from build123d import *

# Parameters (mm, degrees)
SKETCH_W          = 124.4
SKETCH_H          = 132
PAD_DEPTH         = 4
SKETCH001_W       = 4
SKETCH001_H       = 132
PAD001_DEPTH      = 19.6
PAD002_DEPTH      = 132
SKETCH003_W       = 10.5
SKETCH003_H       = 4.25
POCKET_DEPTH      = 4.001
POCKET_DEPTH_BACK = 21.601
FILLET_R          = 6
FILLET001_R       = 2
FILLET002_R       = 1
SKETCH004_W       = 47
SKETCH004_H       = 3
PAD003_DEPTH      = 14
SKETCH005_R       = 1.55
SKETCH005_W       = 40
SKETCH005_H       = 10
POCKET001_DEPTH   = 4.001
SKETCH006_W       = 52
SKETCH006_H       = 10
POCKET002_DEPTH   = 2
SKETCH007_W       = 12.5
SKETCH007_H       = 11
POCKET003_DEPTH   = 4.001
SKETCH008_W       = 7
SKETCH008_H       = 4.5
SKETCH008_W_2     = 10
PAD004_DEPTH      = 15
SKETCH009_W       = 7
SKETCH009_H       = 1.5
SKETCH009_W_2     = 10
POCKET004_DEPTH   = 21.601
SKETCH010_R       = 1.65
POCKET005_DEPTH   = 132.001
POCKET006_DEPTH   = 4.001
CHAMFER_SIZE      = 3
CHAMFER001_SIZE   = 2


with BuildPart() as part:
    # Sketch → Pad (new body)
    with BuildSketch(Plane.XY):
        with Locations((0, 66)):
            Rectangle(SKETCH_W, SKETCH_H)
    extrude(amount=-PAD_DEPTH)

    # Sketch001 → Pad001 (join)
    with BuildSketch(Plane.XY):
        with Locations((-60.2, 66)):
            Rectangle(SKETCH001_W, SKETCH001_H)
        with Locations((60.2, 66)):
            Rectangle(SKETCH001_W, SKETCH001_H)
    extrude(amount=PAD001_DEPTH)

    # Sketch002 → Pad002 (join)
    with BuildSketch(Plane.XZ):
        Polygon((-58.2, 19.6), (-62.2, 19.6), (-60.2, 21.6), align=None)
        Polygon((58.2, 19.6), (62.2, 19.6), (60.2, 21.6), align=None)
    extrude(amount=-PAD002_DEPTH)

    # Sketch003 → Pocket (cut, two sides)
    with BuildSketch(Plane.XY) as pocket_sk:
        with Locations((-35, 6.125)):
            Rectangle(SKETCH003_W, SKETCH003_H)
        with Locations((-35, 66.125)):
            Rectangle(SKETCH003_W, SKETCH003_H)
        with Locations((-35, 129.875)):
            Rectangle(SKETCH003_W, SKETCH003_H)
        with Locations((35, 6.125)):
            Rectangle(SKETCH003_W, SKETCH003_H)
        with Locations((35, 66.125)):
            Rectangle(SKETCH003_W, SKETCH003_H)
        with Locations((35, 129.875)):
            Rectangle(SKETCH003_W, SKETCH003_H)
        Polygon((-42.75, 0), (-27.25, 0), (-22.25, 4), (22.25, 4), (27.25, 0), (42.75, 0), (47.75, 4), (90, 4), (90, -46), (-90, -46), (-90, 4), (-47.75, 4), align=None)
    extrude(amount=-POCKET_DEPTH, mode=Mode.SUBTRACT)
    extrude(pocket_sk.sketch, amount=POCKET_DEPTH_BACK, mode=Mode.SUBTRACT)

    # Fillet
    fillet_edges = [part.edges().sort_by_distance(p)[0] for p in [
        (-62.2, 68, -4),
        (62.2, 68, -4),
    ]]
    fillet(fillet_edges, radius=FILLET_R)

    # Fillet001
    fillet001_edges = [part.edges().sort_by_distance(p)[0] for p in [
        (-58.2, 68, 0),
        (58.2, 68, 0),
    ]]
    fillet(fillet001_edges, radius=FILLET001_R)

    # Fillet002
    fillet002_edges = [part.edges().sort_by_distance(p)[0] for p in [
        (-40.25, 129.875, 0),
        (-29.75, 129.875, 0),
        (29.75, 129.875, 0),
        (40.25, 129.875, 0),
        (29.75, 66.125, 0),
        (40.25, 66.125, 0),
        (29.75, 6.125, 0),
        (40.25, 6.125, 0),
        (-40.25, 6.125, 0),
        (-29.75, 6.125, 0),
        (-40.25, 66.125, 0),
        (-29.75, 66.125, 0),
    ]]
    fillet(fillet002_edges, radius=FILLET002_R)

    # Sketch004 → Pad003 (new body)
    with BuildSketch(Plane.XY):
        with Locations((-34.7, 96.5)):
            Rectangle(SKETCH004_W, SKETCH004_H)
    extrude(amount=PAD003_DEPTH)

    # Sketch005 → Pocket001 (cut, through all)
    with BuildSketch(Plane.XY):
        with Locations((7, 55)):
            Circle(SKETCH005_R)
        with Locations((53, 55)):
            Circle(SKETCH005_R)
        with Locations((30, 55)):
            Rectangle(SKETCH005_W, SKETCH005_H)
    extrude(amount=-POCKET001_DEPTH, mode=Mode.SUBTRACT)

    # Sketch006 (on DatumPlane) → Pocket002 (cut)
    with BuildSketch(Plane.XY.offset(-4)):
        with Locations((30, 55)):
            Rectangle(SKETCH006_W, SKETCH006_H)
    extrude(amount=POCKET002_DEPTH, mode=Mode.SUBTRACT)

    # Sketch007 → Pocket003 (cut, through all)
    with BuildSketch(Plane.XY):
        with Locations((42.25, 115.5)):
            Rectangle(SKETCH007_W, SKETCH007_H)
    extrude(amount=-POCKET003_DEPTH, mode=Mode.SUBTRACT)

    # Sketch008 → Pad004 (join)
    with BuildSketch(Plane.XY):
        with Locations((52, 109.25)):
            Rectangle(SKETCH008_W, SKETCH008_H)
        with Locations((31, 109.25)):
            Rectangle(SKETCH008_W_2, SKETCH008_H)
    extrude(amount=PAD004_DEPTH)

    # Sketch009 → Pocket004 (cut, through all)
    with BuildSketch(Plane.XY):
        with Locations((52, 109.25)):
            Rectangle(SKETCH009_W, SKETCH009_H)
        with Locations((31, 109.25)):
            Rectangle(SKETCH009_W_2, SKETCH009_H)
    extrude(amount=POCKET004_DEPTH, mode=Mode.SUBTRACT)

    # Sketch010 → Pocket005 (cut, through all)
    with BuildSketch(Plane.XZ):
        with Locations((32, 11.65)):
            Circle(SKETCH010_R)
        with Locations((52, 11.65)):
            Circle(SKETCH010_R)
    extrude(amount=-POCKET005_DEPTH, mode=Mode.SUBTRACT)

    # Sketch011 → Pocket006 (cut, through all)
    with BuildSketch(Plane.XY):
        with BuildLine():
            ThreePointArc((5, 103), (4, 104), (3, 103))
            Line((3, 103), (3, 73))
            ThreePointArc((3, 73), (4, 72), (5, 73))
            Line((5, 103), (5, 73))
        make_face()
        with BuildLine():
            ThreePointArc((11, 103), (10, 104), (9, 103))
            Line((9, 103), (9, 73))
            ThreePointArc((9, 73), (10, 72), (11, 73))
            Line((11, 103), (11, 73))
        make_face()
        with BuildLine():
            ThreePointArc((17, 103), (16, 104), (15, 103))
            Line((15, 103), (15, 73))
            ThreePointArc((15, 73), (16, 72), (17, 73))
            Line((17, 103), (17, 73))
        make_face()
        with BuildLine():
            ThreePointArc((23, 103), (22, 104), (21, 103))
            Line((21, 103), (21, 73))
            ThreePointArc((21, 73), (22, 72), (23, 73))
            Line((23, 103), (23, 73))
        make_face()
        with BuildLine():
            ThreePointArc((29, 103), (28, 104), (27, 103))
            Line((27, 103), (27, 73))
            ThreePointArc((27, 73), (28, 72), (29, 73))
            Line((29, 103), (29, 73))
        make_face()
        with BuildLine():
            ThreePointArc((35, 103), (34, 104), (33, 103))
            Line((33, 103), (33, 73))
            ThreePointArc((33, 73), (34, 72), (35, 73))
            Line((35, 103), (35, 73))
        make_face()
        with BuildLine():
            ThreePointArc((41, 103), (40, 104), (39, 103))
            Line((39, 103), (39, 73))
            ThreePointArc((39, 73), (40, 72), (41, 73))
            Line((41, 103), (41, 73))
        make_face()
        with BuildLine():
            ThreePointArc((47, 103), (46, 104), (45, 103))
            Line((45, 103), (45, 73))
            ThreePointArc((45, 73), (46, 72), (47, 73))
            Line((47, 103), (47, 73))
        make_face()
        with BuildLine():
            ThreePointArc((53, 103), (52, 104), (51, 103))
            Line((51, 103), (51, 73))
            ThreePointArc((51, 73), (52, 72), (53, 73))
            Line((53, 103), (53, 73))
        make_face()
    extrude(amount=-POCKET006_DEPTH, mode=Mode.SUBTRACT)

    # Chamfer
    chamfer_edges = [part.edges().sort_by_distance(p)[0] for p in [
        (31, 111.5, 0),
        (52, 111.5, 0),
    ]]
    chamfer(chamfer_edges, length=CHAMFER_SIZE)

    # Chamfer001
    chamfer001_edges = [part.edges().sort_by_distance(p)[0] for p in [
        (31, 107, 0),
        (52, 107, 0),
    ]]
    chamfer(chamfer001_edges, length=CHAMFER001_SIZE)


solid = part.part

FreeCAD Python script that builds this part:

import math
import FreeCAD as App
import Part
import Sketcher

V = App.Vector


def edges_at(feature, points):
    """Names of the edges that pass closest to the given points."""
    edges = feature.Shape.Edges
    near = lambda p: min(range(len(edges)), key=lambda i: edges[i].distToShape(Part.Vertex(*p))[0])
    return sorted({f"Edge{near(p) + 1}" for p in points})


def add_polygon(sketch, points):
    """Adds a closed chain of lines whose ends are joined by coincident constraints."""
    first, n = sketch.GeometryCount, len(points)
    for a, b in zip(points, points[1:] + points[:1]):
        sketch.addGeometry(Part.LineSegment(App.Vector(*a, 0), App.Vector(*b, 0)), False)
    for i in range(n):
        sketch.addConstraint(Sketcher.Constraint("Coincident", first + i, 2, first + (i + 1) % n, 1))

doc = App.newDocument("Part")
body = doc.addObject("PartDesign::Body", "Body")

sketch1 = doc.addObject("Sketcher::SketchObject", "Sketch")
body.addObject(sketch1)
sketch1.AttachmentSupport = (doc.XY_Plane, [""])
sketch1.MapMode = "FlatFace"
add_polygon(sketch1, [(-62.2, 132), (-62.2, 0), (62.2, 0), (62.2, 132)])
sketch1.addConstraint(Sketcher.Constraint("Vertical", 0))
sketch1.addConstraint(Sketcher.Constraint("Horizontal", 1))
sketch1.addConstraint(Sketcher.Constraint("Vertical", 2))
sketch1.addConstraint(Sketcher.Constraint("Horizontal", 3))
sketch1.addConstraint(Sketcher.Constraint("Symmetric", 0, 2, 1, 2, -1, 1))
sketch1.addConstraint(Sketcher.Constraint("DistanceY", 0, 2, 0, 1, 132.0))
sketch1.addConstraint(Sketcher.Constraint("DistanceX", 1, 1, 1, 2, 124.4))
pad1 = doc.addObject("PartDesign::Pad", "Pad")
body.addObject(pad1)
pad1.Profile = sketch1
pad1.Length = 4
pad1.Reversed = True

sketch2 = doc.addObject("Sketcher::SketchObject", "Sketch001")
body.addObject(sketch2)
sketch2.AttachmentSupport = (doc.XY_Plane, [""])
sketch2.MapMode = "FlatFace"
add_polygon(sketch2, [(-62.2, 132), (-62.2, 0), (-58.2, 0), (-58.2, 132)])
add_polygon(sketch2, [(58.2, 132), (58.2, 0), (62.2, 0), (62.2, 132)])
sketch2.addConstraint(Sketcher.Constraint("Vertical", 0))
sketch2.addConstraint(Sketcher.Constraint("Horizontal", 1))
sketch2.addConstraint(Sketcher.Constraint("Vertical", 2))
sketch2.addConstraint(Sketcher.Constraint("Horizontal", 3))
sketch2.addConstraint(Sketcher.Constraint("Vertical", 4))
sketch2.addConstraint(Sketcher.Constraint("Horizontal", 5))
sketch2.addConstraint(Sketcher.Constraint("Vertical", 6))
sketch2.addConstraint(Sketcher.Constraint("Horizontal", 7))
sketch2.addConstraint(Sketcher.Constraint("Symmetric", 1, 2, 4, 2, -1, 1))
sketch2.addConstraint(Sketcher.Constraint("Symmetric", 0, 2, 5, 2, -2))
sketch2.addConstraint(Sketcher.Constraint("Horizontal", 3, 2, 6, 2))
sketch2.addConstraint(Sketcher.Constraint("DistanceX", 1, 1, 1, 2, 4.0))
sketch2.addConstraint(Sketcher.Constraint("DistanceY", 0, 2, 0, 1, 132.0))
sketch2.addConstraint(Sketcher.Constraint("DistanceX", 0, 2, -1, 1, 62.2))
pad2 = doc.addObject("PartDesign::Pad", "Pad001")
body.addObject(pad2)
pad2.Profile = sketch2
pad2.Length = 19.6

sketch3 = doc.addObject("Sketcher::SketchObject", "Sketch002")
body.addObject(sketch3)
sketch3.AttachmentSupport = (doc.XZ_Plane, [""])
sketch3.MapMode = "FlatFace"
add_polygon(sketch3, [(-62.2, 19.6), (-58.2, 19.6), (-60.2, 21.6)])
add_polygon(sketch3, [(58.2, 19.6), (62.2, 19.6), (60.2, 21.6)])
sketch3.addConstraint(Sketcher.Constraint("Horizontal", 0))
sketch3.addConstraint(Sketcher.Constraint("Horizontal", 3))
sketch3.addConstraint(Sketcher.Constraint("Symmetric", 2, 2, 3, 2, -2))
sketch3.addConstraint(Sketcher.Constraint("Symmetric", 1, 2, 4, 2, -2))
sketch3.addConstraint(Sketcher.Constraint("Perpendicular", 1, 2))
sketch3.addConstraint(Sketcher.Constraint("Perpendicular", 2, 4))
sketch3.addConstraint(Sketcher.Constraint("Perpendicular", 4, 5))
sketch3.addConstraint(Sketcher.Constraint("DistanceX", 0, 1, 0, 2, 4.0))
sketch3.addConstraint(Sketcher.Constraint("DistanceX", 0, 2, -1, 1, 58.2))
sketch3.addConstraint(Sketcher.Constraint("DistanceY", -1, 1, 0, 2, 19.6))
pad3 = doc.addObject("PartDesign::Pad", "Pad002")
body.addObject(pad3)
pad3.Profile = sketch3
pad3.Length = 132
pad3.Reversed = True

sketch4 = doc.addObject("Sketcher::SketchObject", "Sketch003")
body.addObject(sketch4)
sketch4.AttachmentSupport = (doc.XY_Plane, [""])
sketch4.MapMode = "FlatFace"
add_polygon(sketch4, [(-40.25, 8.25), (-40.25, 4), (-29.75, 4), (-29.75, 8.25)])
add_polygon(sketch4, [(-40.25, 68.25), (-40.25, 64), (-29.75, 64), (-29.75, 68.25)])
add_polygon(sketch4, [(-40.25, 132), (-40.25, 127.75), (-29.75, 127.75), (-29.75, 132)])
add_polygon(sketch4, [(29.75, 8.25), (29.75, 4), (40.25, 4), (40.25, 8.25)])
add_polygon(sketch4, [(29.75, 68.25), (29.75, 64), (40.25, 64), (40.25, 68.25)])
add_polygon(sketch4, [(29.75, 132), (29.75, 127.75), (40.25, 127.75), (40.25, 132)])
add_polygon(sketch4, [(-27.25, 0), (-42.75, 0), (-47.75, 4), (-90, 4), (-90, -46), (90, -46), (90, 4), (47.75, 4), (42.75, 0), (27.25, 0), (22.25, 4), (-22.25, 4)])
sketch4.addConstraint(Sketcher.Constraint("Vertical", 0))
sketch4.addConstraint(Sketcher.Constraint("Horizontal", 1))
sketch4.addConstraint(Sketcher.Constraint("Vertical", 2))
sketch4.addConstraint(Sketcher.Constraint("Horizontal", 3))
sketch4.addConstraint(Sketcher.Constraint("Vertical", 4))
sketch4.addConstraint(Sketcher.Constraint("Horizontal", 5))
sketch4.addConstraint(Sketcher.Constraint("Vertical", 6))
sketch4.addConstraint(Sketcher.Constraint("Horizontal", 7))
sketch4.addConstraint(Sketcher.Constraint("Vertical", 8))
sketch4.addConstraint(Sketcher.Constraint("Horizontal", 9))
sketch4.addConstraint(Sketcher.Constraint("Vertical", 10))
sketch4.addConstraint(Sketcher.Constraint("Horizontal", 11))
sketch4.addConstraint(Sketcher.Constraint("Vertical", 12))
sketch4.addConstraint(Sketcher.Constraint("Horizontal", 13))
sketch4.addConstraint(Sketcher.Constraint("Vertical", 14))
sketch4.addConstraint(Sketcher.Constraint("Horizontal", 15))
sketch4.addConstraint(Sketcher.Constraint("Vertical", 16))
sketch4.addConstraint(Sketcher.Constraint("Horizontal", 17))
sketch4.addConstraint(Sketcher.Constraint("Vertical", 18))
sketch4.addConstraint(Sketcher.Constraint("Horizontal", 19))
sketch4.addConstraint(Sketcher.Constraint("Vertical", 20))
sketch4.addConstraint(Sketcher.Constraint("Horizontal", 21))
sketch4.addConstraint(Sketcher.Constraint("Vertical", 22))
sketch4.addConstraint(Sketcher.Constraint("Horizontal", 23))
sketch4.addConstraint(Sketcher.Constraint("Horizontal", 24))
sketch4.addConstraint(Sketcher.Constraint("Horizontal", 26))
sketch4.addConstraint(Sketcher.Constraint("Vertical", 27))
sketch4.addConstraint(Sketcher.Constraint("Horizontal", 28))
sketch4.addConstraint(Sketcher.Constraint("Vertical", 29))
sketch4.addConstraint(Sketcher.Constraint("Horizontal", 30))
sketch4.addConstraint(Sketcher.Constraint("Horizontal", 32))
sketch4.addConstraint(Sketcher.Constraint("Horizontal", 34))
sketch4.addConstraint(Sketcher.Constraint("Symmetric", 24, 2, 31, 2, -1, 1))
sketch4.addConstraint(Sketcher.Constraint("Symmetric", 1, 2, 12, 2, -2))
sketch4.addConstraint(Sketcher.Constraint("Symmetric", 3, 2, 14, 2, -2))
sketch4.addConstraint(Sketcher.Constraint("Symmetric", 5, 2, 16, 2, -2))
sketch4.addConstraint(Sketcher.Constraint("Symmetric", 7, 2, 18, 2, -2))
sketch4.addConstraint(Sketcher.Constraint("Symmetric", 9, 2, 20, 2, -2))
sketch4.addConstraint(Sketcher.Constraint("Symmetric", 11, 2, 22, 2, -2))
sketch4.addConstraint(Sketcher.Constraint("Symmetric", 26, 2, 29, 2, -2))
sketch4.addConstraint(Sketcher.Constraint("Symmetric", 32, 2, 35, 2, -2))
sketch4.addConstraint(Sketcher.Constraint("Parallel", 25, 33))
sketch4.addConstraint(Sketcher.Constraint("Parallel", 31, 35))
sketch4.addConstraint(Sketcher.Constraint("Horizontal", 13, 2, 25, 2))
sketch4.addConstraint(Sketcher.Constraint("Horizontal", 30, 2, 33, 2))
sketch4.addConstraint(Sketcher.Constraint("Vertical", 3, 2, 4, 2))
sketch4.addConstraint(Sketcher.Constraint("Vertical", 2, 2, 5, 2))
sketch4.addConstraint(Sketcher.Constraint("Vertical", 7, 2, 8, 2))
sketch4.addConstraint(Sketcher.Constraint("Vertical", 6, 2, 9, 2))
sketch4.addConstraint(Sketcher.Constraint("Equal", 26, 30))
sketch4.addConstraint(Sketcher.Constraint("Equal", 2, 4))
sketch4.addConstraint(Sketcher.Constraint("Equal", 6, 8))
sketch4.addConstraint(Sketcher.Constraint("DistanceX", 28, 1, 28, 2, 180.0))
sketch4.addConstraint(Sketcher.Constraint("DistanceY", 27, 2, 27, 1, 50.0))
sketch4.addConstraint(Sketcher.Constraint("DistanceX", 1, 1, 1, 2, 10.5))
sketch4.addConstraint(Sketcher.Constraint("DistanceX", 24, 2, 24, 1, 15.5))
sketch4.addConstraint(Sketcher.Constraint("DistanceX", 34, 2, 34, 1, 44.5))
sketch4.addConstraint(Sketcher.Constraint("DistanceY", -1, 1, 0, 2, 4.0))
sketch4.addConstraint(Sketcher.Constraint("DistanceY", -1, 1, 4, 2, 64.0))
sketch4.addConstraint(Sketcher.Constraint("DistanceY", -1, 1, 10, 2, 132.0))
sketch4.addConstraint(Sketcher.Constraint("DistanceX", 0, 2, 12, 2, 70.0))
sketch4.addConstraint(Sketcher.Constraint("DistanceX", 24, 2, 1, 2, 13.0))
sketch4.addConstraint(Sketcher.Constraint("DistanceY", 0, 2, 0, 1, 4.25))
pocket1 = doc.addObject("PartDesign::Pocket", "Pocket")
body.addObject(pocket1)
pocket1.Profile = sketch4
pocket1.Type = "ThroughAll"
pocket1.Midplane = True
doc.recompute()

fillet = doc.addObject("PartDesign::Fillet", "Fillet")
body.addObject(fillet)
fillet.Base = (pocket1, edges_at(pocket1, [(-62.2, 68, -4), (62.2, 68, -4)]))
fillet.Radius = 6
doc.recompute()

fillet2 = doc.addObject("PartDesign::Fillet", "Fillet001")
body.addObject(fillet2)
fillet2.Base = (fillet, edges_at(fillet, [(-58.2, 68, 0), (58.2, 68, 0)]))
fillet2.Radius = 2
doc.recompute()

fillet3 = doc.addObject("PartDesign::Fillet", "Fillet002")
body.addObject(fillet3)
fillet3.Base = (fillet2, edges_at(fillet2, [
    (-40.25, 129.875, 0),
    (-29.75, 129.875, 0),
    (29.75, 129.875, 0),
    (40.25, 129.875, 0),
    (29.75, 66.125, 0),
    (40.25, 66.125, 0),
    (29.75, 6.125, 0),
    (40.25, 6.125, 0),
    (-40.25, 6.125, 0),
    (-29.75, 6.125, 0),
    (-40.25, 66.125, 0),
    (-29.75, 66.125, 0),
]))
fillet3.Radius = 1

sketch5 = doc.addObject("Sketcher::SketchObject", "Sketch004")
body.addObject(sketch5)
sketch5.AttachmentSupport = (doc.XY_Plane, [""])
sketch5.MapMode = "FlatFace"
add_polygon(sketch5, [(-58.2, 98), (-58.2, 95), (-11.2, 95), (-11.2, 98)])
sketch5.addConstraint(Sketcher.Constraint("Vertical", 0))
sketch5.addConstraint(Sketcher.Constraint("Horizontal", 1))
sketch5.addConstraint(Sketcher.Constraint("Vertical", 2))
sketch5.addConstraint(Sketcher.Constraint("Horizontal", 3))
sketch5.addConstraint(Sketcher.Constraint("DistanceX", 1, 1, 1, 2, 47.0))
sketch5.addConstraint(Sketcher.Constraint("DistanceY", 0, 2, 0, 1, 3.0))
sketch5.addConstraint(Sketcher.Constraint("DistanceY", -1, 1, 0, 2, 95.0))
sketch5.addConstraint(Sketcher.Constraint("DistanceX", 0, 2, -1, 1, 58.2))
pad4 = doc.addObject("PartDesign::Pad", "Pad003")
body.addObject(pad4)
pad4.Profile = sketch5
pad4.Length = 14

sketch6 = doc.addObject("Sketcher::SketchObject", "Sketch005")
body.addObject(sketch6)
sketch6.AttachmentSupport = (doc.XY_Plane, [""])
sketch6.MapMode = "FlatFace"
sketch6.addGeometry(Part.Circle(V(7, 55, 0), V(0, 0, 1), 1.55), False)
sketch6.addGeometry(Part.Circle(V(53, 55, 0), V(0, 0, 1), 1.55), False)
add_polygon(sketch6, [(10, 60), (10, 50), (50, 50), (50, 60)])
sketch6.addConstraint(Sketcher.Constraint("Vertical", 2))
sketch6.addConstraint(Sketcher.Constraint("Horizontal", 3))
sketch6.addConstraint(Sketcher.Constraint("Vertical", 4))
sketch6.addConstraint(Sketcher.Constraint("Horizontal", 5))
sketch6.addConstraint(Sketcher.Constraint("Equal", 0, 1))
sketch6.addConstraint(Sketcher.Constraint("Horizontal", 0, 3, 1, 3))
sketch6.addConstraint(Sketcher.Constraint("Diameter", 0, 3.1))
sketch6.addConstraint(Sketcher.Constraint("DistanceX", 3, 1, 3, 2, 40.0))
sketch6.addConstraint(Sketcher.Constraint("DistanceY", 2, 2, 2, 1, 10.0))
sketch6.addConstraint(Sketcher.Constraint("DistanceX", -1, 1, 0, 3, 7.0))
sketch6.addConstraint(Sketcher.Constraint("DistanceY", -1, 1, 0, 3, 55.0))
sketch6.addConstraint(Sketcher.Constraint("DistanceX", -1, 1, 1, 3, 53.0))
sketch6.addConstraint(Sketcher.Constraint("DistanceX", -1, 1, 2, 2, 10.0))
sketch6.addConstraint(Sketcher.Constraint("DistanceY", -1, 1, 2, 2, 50.0))
pocket2 = doc.addObject("PartDesign::Pocket", "Pocket001")
body.addObject(pocket2)
pocket2.Profile = sketch6
pocket2.Type = "ThroughAll"

sketch7 = doc.addObject("Sketcher::SketchObject", "Sketch006")
body.addObject(sketch7)
sketch7.AttachmentSupport = (doc.XY_Plane, [""])
sketch7.MapMode = "FlatFace"
sketch7.AttachmentOffset = App.Placement(V(0, 0, -4), App.Rotation())
add_polygon(sketch7, [(4, 60), (4, 50), (56, 50), (56, 60)])
sketch7.addConstraint(Sketcher.Constraint("Vertical", 0))
sketch7.addConstraint(Sketcher.Constraint("Horizontal", 1))
sketch7.addConstraint(Sketcher.Constraint("Vertical", 2))
sketch7.addConstraint(Sketcher.Constraint("Horizontal", 3))
sketch7.addConstraint(Sketcher.Constraint("DistanceX", 1, 1, 1, 2, 52.0))
sketch7.addConstraint(Sketcher.Constraint("DistanceY", 0, 2, 0, 1, 10.0))
sketch7.addConstraint(Sketcher.Constraint("DistanceX", -1, 1, 0, 2, 4.0))
sketch7.addConstraint(Sketcher.Constraint("DistanceY", -1, 1, 0, 2, 50.0))
pocket3 = doc.addObject("PartDesign::Pocket", "Pocket002")
body.addObject(pocket3)
pocket3.Profile = sketch7
pocket3.Length = 2
pocket3.Reversed = True

sketch8 = doc.addObject("Sketcher::SketchObject", "Sketch007")
body.addObject(sketch8)
sketch8.AttachmentSupport = (doc.XY_Plane, [""])
sketch8.MapMode = "FlatFace"
add_polygon(sketch8, [(36, 121), (36, 110), (48.5, 110), (48.5, 121)])
sketch8.addConstraint(Sketcher.Constraint("Vertical", 0))
sketch8.addConstraint(Sketcher.Constraint("Horizontal", 1))
sketch8.addConstraint(Sketcher.Constraint("Vertical", 2))
sketch8.addConstraint(Sketcher.Constraint("Horizontal", 3))
sketch8.addConstraint(Sketcher.Constraint("DistanceY", 0, 2, 0, 1, 11.0))
sketch8.addConstraint(Sketcher.Constraint("DistanceX", 1, 1, 1, 2, 12.5))
sketch8.addConstraint(Sketcher.Constraint("DistanceX", -1, 1, 0, 2, 36.0))
sketch8.addConstraint(Sketcher.Constraint("DistanceY", -1, 1, 0, 2, 110.0))
pocket4 = doc.addObject("PartDesign::Pocket", "Pocket003")
body.addObject(pocket4)
pocket4.Profile = sketch8
pocket4.Type = "ThroughAll"

sketch9 = doc.addObject("Sketcher::SketchObject", "Sketch008")
body.addObject(sketch9)
sketch9.AttachmentSupport = (doc.XY_Plane, [""])
sketch9.MapMode = "FlatFace"
add_polygon(sketch9, [(48.5, 111.5), (48.5, 107), (55.5, 107), (55.5, 111.5)])
add_polygon(sketch9, [(26, 111.5), (26, 107), (36, 107), (36, 111.5)])
sketch9.addConstraint(Sketcher.Constraint("Vertical", 0))
sketch9.addConstraint(Sketcher.Constraint("Horizontal", 1))
sketch9.addConstraint(Sketcher.Constraint("Vertical", 2))
sketch9.addConstraint(Sketcher.Constraint("Horizontal", 3))
sketch9.addConstraint(Sketcher.Constraint("Vertical", 4))
sketch9.addConstraint(Sketcher.Constraint("Horizontal", 5))
sketch9.addConstraint(Sketcher.Constraint("Vertical", 6))
sketch9.addConstraint(Sketcher.Constraint("Horizontal", 7))
sketch9.addConstraint(Sketcher.Constraint("Horizontal", 1, 2, 4, 2))
sketch9.addConstraint(Sketcher.Constraint("Horizontal", 3, 2, 6, 2))
sketch9.addConstraint(Sketcher.Constraint("DistanceX", 1, 1, 1, 2, 7.0))
sketch9.addConstraint(Sketcher.Constraint("DistanceX", 5, 1, 5, 2, 10.0))
sketch9.addConstraint(Sketcher.Constraint("DistanceY", 0, 2, 0, 1, 4.5))
sketch9.addConstraint(Sketcher.Constraint("DistanceY", -1, 1, 0, 2, 107.0))
sketch9.addConstraint(Sketcher.Constraint("DistanceX", -1, 1, 4, 2, 26.0))
sketch9.addConstraint(Sketcher.Constraint("DistanceX", -1, 1, 0, 2, 48.5))
pad5 = doc.addObject("PartDesign::Pad", "Pad004")
body.addObject(pad5)
pad5.Profile = sketch9
pad5.Length = 15

sketch10 = doc.addObject("Sketcher::SketchObject", "Sketch009")
body.addObject(sketch10)
sketch10.AttachmentSupport = (doc.XY_Plane, [""])
sketch10.MapMode = "FlatFace"
add_polygon(sketch10, [(48.5, 110), (48.5, 108.5), (55.5, 108.5), (55.5, 110)])
add_polygon(sketch10, [(26, 110), (26, 108.5), (36, 108.5), (36, 110)])
sketch10.addConstraint(Sketcher.Constraint("Vertical", 0))
sketch10.addConstraint(Sketcher.Constraint("Horizontal", 1))
sketch10.addConstraint(Sketcher.Constraint("Vertical", 2))
sketch10.addConstraint(Sketcher.Constraint("Horizontal", 3))
sketch10.addConstraint(Sketcher.Constraint("Vertical", 4))
sketch10.addConstraint(Sketcher.Constraint("Horizontal", 5))
sketch10.addConstraint(Sketcher.Constraint("Vertical", 6))
sketch10.addConstraint(Sketcher.Constraint("Horizontal", 7))
sketch10.addConstraint(Sketcher.Constraint("Horizontal", 1, 2, 4, 2))
sketch10.addConstraint(Sketcher.Constraint("Horizontal", 3, 2, 6, 2))
sketch10.addConstraint(Sketcher.Constraint("DistanceX", 1, 1, 1, 2, 7.0))
sketch10.addConstraint(Sketcher.Constraint("DistanceX", 5, 1, 5, 2, 10.0))
sketch10.addConstraint(Sketcher.Constraint("DistanceY", 0, 2, 0, 1, 1.5))
sketch10.addConstraint(Sketcher.Constraint("DistanceY", -1, 1, 2, 2, 110.0))
sketch10.addConstraint(Sketcher.Constraint("DistanceX", -1, 1, 4, 2, 26.0))
sketch10.addConstraint(Sketcher.Constraint("DistanceX", -1, 1, 0, 2, 48.5))
pocket5 = doc.addObject("PartDesign::Pocket", "Pocket004")
body.addObject(pocket5)
pocket5.Profile = sketch10
pocket5.Type = "ThroughAll"
pocket5.Reversed = True

sketch11 = doc.addObject("Sketcher::SketchObject", "Sketch010")
body.addObject(sketch11)
sketch11.AttachmentSupport = (doc.XZ_Plane, [""])
sketch11.MapMode = "FlatFace"
sketch11.addGeometry(Part.Circle(V(32, 11.65, 0), V(0, 0, 1), 1.65), False)
sketch11.addGeometry(Part.Circle(V(52, 11.65, 0), V(0, 0, 1), 1.65), False)
sketch11.addConstraint(Sketcher.Constraint("Equal", 0, 1))
sketch11.addConstraint(Sketcher.Constraint("Horizontal", 0, 3, 1, 3))
sketch11.addConstraint(Sketcher.Constraint("Diameter", 0, 3.3))
sketch11.addConstraint(Sketcher.Constraint("DistanceX", -1, 1, 0, 3, 32.0))
sketch11.addConstraint(Sketcher.Constraint("DistanceX", -1, 1, 1, 3, 52.0))
sketch11.addConstraint(Sketcher.Constraint("DistanceY", -1, 1, 0, 3, 11.65))
pocket6 = doc.addObject("PartDesign::Pocket", "Pocket005")
body.addObject(pocket6)
pocket6.Profile = sketch11
pocket6.Type = "ThroughAll"

sketch12 = doc.addObject("Sketcher::SketchObject", "Sketch011")
body.addObject(sketch12)
sketch12.AttachmentSupport = (doc.XY_Plane, [""])
sketch12.MapMode = "FlatFace"
sketch12.addGeometry(Part.ArcOfCircle(Part.Circle(V(4, 103, 0), V(0, 0, 1), 1), math.radians(0), math.radians(180)), False)
sketch12.addGeometry(Part.LineSegment(V(3, 103, 0), V(3, 73, 0)), False)
sketch12.addGeometry(Part.ArcOfCircle(Part.Circle(V(4, 73, 0), V(0, 0, 1), 1), math.radians(180), math.radians(360)), False)
sketch12.addGeometry(Part.LineSegment(V(5, 73, 0), V(5, 103, 0)), False)
sketch12.addGeometry(Part.ArcOfCircle(Part.Circle(V(10, 103, 0), V(0, 0, 1), 1), math.radians(0), math.radians(180)), False)
sketch12.addGeometry(Part.LineSegment(V(9, 103, 0), V(9, 73, 0)), False)
sketch12.addGeometry(Part.ArcOfCircle(Part.Circle(V(10, 73, 0), V(0, 0, 1), 1), math.radians(180), math.radians(360)), False)
sketch12.addGeometry(Part.LineSegment(V(11, 73, 0), V(11, 103, 0)), False)
sketch12.addGeometry(Part.ArcOfCircle(Part.Circle(V(16, 103, 0), V(0, 0, 1), 1), math.radians(0), math.radians(180)), False)
sketch12.addGeometry(Part.LineSegment(V(15, 103, 0), V(15, 73, 0)), False)
sketch12.addGeometry(Part.ArcOfCircle(Part.Circle(V(16, 73, 0), V(0, 0, 1), 1), math.radians(180), math.radians(360)), False)
sketch12.addGeometry(Part.LineSegment(V(17, 73, 0), V(17, 103, 0)), False)
sketch12.addGeometry(Part.ArcOfCircle(Part.Circle(V(22, 103, 0), V(0, 0, 1), 1), math.radians(0), math.radians(180)), False)
sketch12.addGeometry(Part.LineSegment(V(21, 103, 0), V(21, 73, 0)), False)
sketch12.addGeometry(Part.ArcOfCircle(Part.Circle(V(22, 73, 0), V(0, 0, 1), 1), math.radians(180), math.radians(360)), False)
sketch12.addGeometry(Part.LineSegment(V(23, 73, 0), V(23, 103, 0)), False)
sketch12.addGeometry(Part.ArcOfCircle(Part.Circle(V(28, 103, 0), V(0, 0, 1), 1), math.radians(0), math.radians(180)), False)
sketch12.addGeometry(Part.LineSegment(V(27, 103, 0), V(27, 73, 0)), False)
sketch12.addGeometry(Part.ArcOfCircle(Part.Circle(V(28, 73, 0), V(0, 0, 1), 1), math.radians(180), math.radians(360)), False)
sketch12.addGeometry(Part.LineSegment(V(29, 73, 0), V(29, 103, 0)), False)
sketch12.addGeometry(Part.ArcOfCircle(Part.Circle(V(34, 103, 0), V(0, 0, 1), 1), math.radians(0), math.radians(180)), False)
sketch12.addGeometry(Part.LineSegment(V(33, 103, 0), V(33, 73, 0)), False)
sketch12.addGeometry(Part.ArcOfCircle(Part.Circle(V(34, 73, 0), V(0, 0, 1), 1), math.radians(180), math.radians(360)), False)
sketch12.addGeometry(Part.LineSegment(V(35, 73, 0), V(35, 103, 0)), False)
sketch12.addGeometry(Part.ArcOfCircle(Part.Circle(V(40, 103, 0), V(0, 0, 1), 1), math.radians(0), math.radians(180)), False)
sketch12.addGeometry(Part.LineSegment(V(39, 103, 0), V(39, 73, 0)), False)
sketch12.addGeometry(Part.ArcOfCircle(Part.Circle(V(40, 73, 0), V(0, 0, 1), 1), math.radians(180), math.radians(360)), False)
sketch12.addGeometry(Part.LineSegment(V(41, 73, 0), V(41, 103, 0)), False)
sketch12.addGeometry(Part.ArcOfCircle(Part.Circle(V(46, 103, 0), V(0, 0, 1), 1), math.radians(0), math.radians(180)), False)
sketch12.addGeometry(Part.LineSegment(V(45, 103, 0), V(45, 73, 0)), False)
sketch12.addGeometry(Part.ArcOfCircle(Part.Circle(V(46, 73, 0), V(0, 0, 1), 1), math.radians(180), math.radians(360)), False)
sketch12.addGeometry(Part.LineSegment(V(47, 73, 0), V(47, 103, 0)), False)
sketch12.addGeometry(Part.ArcOfCircle(Part.Circle(V(52, 103, 0), V(0, 0, 1), 1), math.radians(0), math.radians(180)), False)
sketch12.addGeometry(Part.LineSegment(V(51, 103, 0), V(51, 73, 0)), False)
sketch12.addGeometry(Part.ArcOfCircle(Part.Circle(V(52, 73, 0), V(0, 0, 1), 1), math.radians(180), math.radians(360)), False)
sketch12.addGeometry(Part.LineSegment(V(53, 73, 0), V(53, 103, 0)), False)
sketch12.addConstraint(Sketcher.Constraint("Tangent", 0, 2, 1, 1))
sketch12.addConstraint(Sketcher.Constraint("Tangent", 1, 2, 2, 1))
sketch12.addConstraint(Sketcher.Constraint("Tangent", 2, 2, 3, 1))
sketch12.addConstraint(Sketcher.Constraint("Tangent", 3, 2, 0, 1))
sketch12.addConstraint(Sketcher.Constraint("Tangent", 4, 2, 5, 1))
sketch12.addConstraint(Sketcher.Constraint("Tangent", 5, 2, 6, 1))
sketch12.addConstraint(Sketcher.Constraint("Tangent", 6, 2, 7, 1))
sketch12.addConstraint(Sketcher.Constraint("Tangent", 7, 2, 4, 1))
sketch12.addConstraint(Sketcher.Constraint("Tangent", 8, 2, 9, 1))
sketch12.addConstraint(Sketcher.Constraint("Tangent", 9, 2, 10, 1))
sketch12.addConstraint(Sketcher.Constraint("Tangent", 10, 2, 11, 1))
sketch12.addConstraint(Sketcher.Constraint("Tangent", 11, 2, 8, 1))
sketch12.addConstraint(Sketcher.Constraint("Tangent", 12, 2, 13, 1))
sketch12.addConstraint(Sketcher.Constraint("Tangent", 13, 2, 14, 1))
sketch12.addConstraint(Sketcher.Constraint("Tangent", 14, 2, 15, 1))
sketch12.addConstraint(Sketcher.Constraint("Tangent", 15, 2, 12, 1))
sketch12.addConstraint(Sketcher.Constraint("Tangent", 16, 2, 17, 1))
sketch12.addConstraint(Sketcher.Constraint("Tangent", 17, 2, 18, 1))
sketch12.addConstraint(Sketcher.Constraint("Tangent", 18, 2, 19, 1))
sketch12.addConstraint(Sketcher.Constraint("Tangent", 19, 2, 16, 1))
sketch12.addConstraint(Sketcher.Constraint("Tangent", 20, 2, 21, 1))
sketch12.addConstraint(Sketcher.Constraint("Tangent", 21, 2, 22, 1))
sketch12.addConstraint(Sketcher.Constraint("Tangent", 22, 2, 23, 1))
sketch12.addConstraint(Sketcher.Constraint("Tangent", 23, 2, 20, 1))
sketch12.addConstraint(Sketcher.Constraint("Tangent", 24, 2, 25, 1))
sketch12.addConstraint(Sketcher.Constraint("Tangent", 25, 2, 26, 1))
sketch12.addConstraint(Sketcher.Constraint("Tangent", 26, 2, 27, 1))
sketch12.addConstraint(Sketcher.Constraint("Tangent", 27, 2, 24, 1))
sketch12.addConstraint(Sketcher.Constraint("Tangent", 28, 2, 29, 1))
sketch12.addConstraint(Sketcher.Constraint("Tangent", 29, 2, 30, 1))
sketch12.addConstraint(Sketcher.Constraint("Tangent", 30, 2, 31, 1))
sketch12.addConstraint(Sketcher.Constraint("Tangent", 31, 2, 28, 1))
sketch12.addConstraint(Sketcher.Constraint("Tangent", 32, 2, 33, 1))
sketch12.addConstraint(Sketcher.Constraint("Tangent", 33, 2, 34, 1))
sketch12.addConstraint(Sketcher.Constraint("Tangent", 34, 2, 35, 1))
sketch12.addConstraint(Sketcher.Constraint("Tangent", 35, 2, 32, 1))
sketch12.addConstraint(Sketcher.Constraint("Vertical", 1))
sketch12.addConstraint(Sketcher.Constraint("Vertical", 3))
sketch12.addConstraint(Sketcher.Constraint("Vertical", 5))
sketch12.addConstraint(Sketcher.Constraint("Vertical", 7))
sketch12.addConstraint(Sketcher.Constraint("Vertical", 9))
sketch12.addConstraint(Sketcher.Constraint("Vertical", 11))
sketch12.addConstraint(Sketcher.Constraint("Vertical", 13))
sketch12.addConstraint(Sketcher.Constraint("Vertical", 15))
sketch12.addConstraint(Sketcher.Constraint("Vertical", 17))
sketch12.addConstraint(Sketcher.Constraint("Vertical", 19))
sketch12.addConstraint(Sketcher.Constraint("Vertical", 21))
sketch12.addConstraint(Sketcher.Constraint("Vertical", 23))
sketch12.addConstraint(Sketcher.Constraint("Vertical", 25))
sketch12.addConstraint(Sketcher.Constraint("Vertical", 27))
sketch12.addConstraint(Sketcher.Constraint("Vertical", 29))
sketch12.addConstraint(Sketcher.Constraint("Vertical", 31))
sketch12.addConstraint(Sketcher.Constraint("Vertical", 33))
sketch12.addConstraint(Sketcher.Constraint("Vertical", 35))
sketch12.addConstraint(Sketcher.Constraint("Equal", 2, 4))
sketch12.addConstraint(Sketcher.Constraint("Equal", 6, 8))
sketch12.addConstraint(Sketcher.Constraint("Equal", 10, 12))
sketch12.addConstraint(Sketcher.Constraint("Equal", 14, 16))
sketch12.addConstraint(Sketcher.Constraint("Equal", 18, 20))
sketch12.addConstraint(Sketcher.Constraint("Equal", 22, 24))
sketch12.addConstraint(Sketcher.Constraint("Equal", 26, 28))
sketch12.addConstraint(Sketcher.Constraint("Equal", 30, 32))
sketch12.addConstraint(Sketcher.Constraint("Horizontal", 0, 3, 4, 3))
sketch12.addConstraint(Sketcher.Constraint("Horizontal", 2, 3, 6, 3))
sketch12.addConstraint(Sketcher.Constraint("Horizontal", 4, 3, 8, 3))
sketch12.addConstraint(Sketcher.Constraint("Horizontal", 6, 3, 10, 3))
sketch12.addConstraint(Sketcher.Constraint("Horizontal", 8, 3, 12, 3))
sketch12.addConstraint(Sketcher.Constraint("Horizontal", 10, 3, 14, 3))
sketch12.addConstraint(Sketcher.Constraint("Horizontal", 12, 3, 16, 3))
sketch12.addConstraint(Sketcher.Constraint("Horizontal", 14, 3, 18, 3))
sketch12.addConstraint(Sketcher.Constraint("Horizontal", 16, 3, 20, 3))
sketch12.addConstraint(Sketcher.Constraint("Horizontal", 18, 3, 22, 3))
sketch12.addConstraint(Sketcher.Constraint("Horizontal", 20, 3, 24, 3))
sketch12.addConstraint(Sketcher.Constraint("Horizontal", 22, 3, 26, 3))
sketch12.addConstraint(Sketcher.Constraint("Horizontal", 24, 3, 28, 3))
sketch12.addConstraint(Sketcher.Constraint("Horizontal", 26, 3, 30, 3))
sketch12.addConstraint(Sketcher.Constraint("Horizontal", 28, 3, 32, 3))
sketch12.addConstraint(Sketcher.Constraint("Horizontal", 30, 3, 34, 3))
sketch12.addConstraint(Sketcher.Constraint("Radius", 0, 1.0))
sketch12.addConstraint(Sketcher.Constraint("DistanceY", 1, 2, 1, 1, 30.0))
sketch12.addConstraint(Sketcher.Constraint("DistanceX", -1, 1, 0, 3, 4.0))
sketch12.addConstraint(Sketcher.Constraint("DistanceY", -1, 1, 0, 3, 103.0))
sketch12.addConstraint(Sketcher.Constraint("DistanceX", -1, 1, 4, 3, 10.0))
sketch12.addConstraint(Sketcher.Constraint("DistanceX", -1, 1, 8, 3, 16.0))
sketch12.addConstraint(Sketcher.Constraint("DistanceX", -1, 1, 12, 3, 22.0))
sketch12.addConstraint(Sketcher.Constraint("DistanceX", -1, 1, 16, 3, 28.0))
sketch12.addConstraint(Sketcher.Constraint("DistanceX", -1, 1, 20, 3, 34.0))
sketch12.addConstraint(Sketcher.Constraint("DistanceX", -1, 1, 24, 3, 40.0))
sketch12.addConstraint(Sketcher.Constraint("DistanceX", -1, 1, 28, 3, 46.0))
sketch12.addConstraint(Sketcher.Constraint("DistanceX", -1, 1, 32, 3, 52.0))
pocket7 = doc.addObject("PartDesign::Pocket", "Pocket006")
body.addObject(pocket7)
pocket7.Profile = sketch12
pocket7.Type = "ThroughAll"
doc.recompute()

chamfer = doc.addObject("PartDesign::Chamfer", "Chamfer")
body.addObject(chamfer)
chamfer.Base = (pocket7, edges_at(pocket7, [(31, 111.5, 0), (52, 111.5, 0)]))
chamfer.Size = 3
doc.recompute()

chamfer2 = doc.addObject("PartDesign::Chamfer", "Chamfer001")
body.addObject(chamfer2)
chamfer2.Base = (chamfer, edges_at(chamfer, [(31, 107, 0), (52, 107, 0)]))
chamfer2.Size = 2

doc.recompute()
